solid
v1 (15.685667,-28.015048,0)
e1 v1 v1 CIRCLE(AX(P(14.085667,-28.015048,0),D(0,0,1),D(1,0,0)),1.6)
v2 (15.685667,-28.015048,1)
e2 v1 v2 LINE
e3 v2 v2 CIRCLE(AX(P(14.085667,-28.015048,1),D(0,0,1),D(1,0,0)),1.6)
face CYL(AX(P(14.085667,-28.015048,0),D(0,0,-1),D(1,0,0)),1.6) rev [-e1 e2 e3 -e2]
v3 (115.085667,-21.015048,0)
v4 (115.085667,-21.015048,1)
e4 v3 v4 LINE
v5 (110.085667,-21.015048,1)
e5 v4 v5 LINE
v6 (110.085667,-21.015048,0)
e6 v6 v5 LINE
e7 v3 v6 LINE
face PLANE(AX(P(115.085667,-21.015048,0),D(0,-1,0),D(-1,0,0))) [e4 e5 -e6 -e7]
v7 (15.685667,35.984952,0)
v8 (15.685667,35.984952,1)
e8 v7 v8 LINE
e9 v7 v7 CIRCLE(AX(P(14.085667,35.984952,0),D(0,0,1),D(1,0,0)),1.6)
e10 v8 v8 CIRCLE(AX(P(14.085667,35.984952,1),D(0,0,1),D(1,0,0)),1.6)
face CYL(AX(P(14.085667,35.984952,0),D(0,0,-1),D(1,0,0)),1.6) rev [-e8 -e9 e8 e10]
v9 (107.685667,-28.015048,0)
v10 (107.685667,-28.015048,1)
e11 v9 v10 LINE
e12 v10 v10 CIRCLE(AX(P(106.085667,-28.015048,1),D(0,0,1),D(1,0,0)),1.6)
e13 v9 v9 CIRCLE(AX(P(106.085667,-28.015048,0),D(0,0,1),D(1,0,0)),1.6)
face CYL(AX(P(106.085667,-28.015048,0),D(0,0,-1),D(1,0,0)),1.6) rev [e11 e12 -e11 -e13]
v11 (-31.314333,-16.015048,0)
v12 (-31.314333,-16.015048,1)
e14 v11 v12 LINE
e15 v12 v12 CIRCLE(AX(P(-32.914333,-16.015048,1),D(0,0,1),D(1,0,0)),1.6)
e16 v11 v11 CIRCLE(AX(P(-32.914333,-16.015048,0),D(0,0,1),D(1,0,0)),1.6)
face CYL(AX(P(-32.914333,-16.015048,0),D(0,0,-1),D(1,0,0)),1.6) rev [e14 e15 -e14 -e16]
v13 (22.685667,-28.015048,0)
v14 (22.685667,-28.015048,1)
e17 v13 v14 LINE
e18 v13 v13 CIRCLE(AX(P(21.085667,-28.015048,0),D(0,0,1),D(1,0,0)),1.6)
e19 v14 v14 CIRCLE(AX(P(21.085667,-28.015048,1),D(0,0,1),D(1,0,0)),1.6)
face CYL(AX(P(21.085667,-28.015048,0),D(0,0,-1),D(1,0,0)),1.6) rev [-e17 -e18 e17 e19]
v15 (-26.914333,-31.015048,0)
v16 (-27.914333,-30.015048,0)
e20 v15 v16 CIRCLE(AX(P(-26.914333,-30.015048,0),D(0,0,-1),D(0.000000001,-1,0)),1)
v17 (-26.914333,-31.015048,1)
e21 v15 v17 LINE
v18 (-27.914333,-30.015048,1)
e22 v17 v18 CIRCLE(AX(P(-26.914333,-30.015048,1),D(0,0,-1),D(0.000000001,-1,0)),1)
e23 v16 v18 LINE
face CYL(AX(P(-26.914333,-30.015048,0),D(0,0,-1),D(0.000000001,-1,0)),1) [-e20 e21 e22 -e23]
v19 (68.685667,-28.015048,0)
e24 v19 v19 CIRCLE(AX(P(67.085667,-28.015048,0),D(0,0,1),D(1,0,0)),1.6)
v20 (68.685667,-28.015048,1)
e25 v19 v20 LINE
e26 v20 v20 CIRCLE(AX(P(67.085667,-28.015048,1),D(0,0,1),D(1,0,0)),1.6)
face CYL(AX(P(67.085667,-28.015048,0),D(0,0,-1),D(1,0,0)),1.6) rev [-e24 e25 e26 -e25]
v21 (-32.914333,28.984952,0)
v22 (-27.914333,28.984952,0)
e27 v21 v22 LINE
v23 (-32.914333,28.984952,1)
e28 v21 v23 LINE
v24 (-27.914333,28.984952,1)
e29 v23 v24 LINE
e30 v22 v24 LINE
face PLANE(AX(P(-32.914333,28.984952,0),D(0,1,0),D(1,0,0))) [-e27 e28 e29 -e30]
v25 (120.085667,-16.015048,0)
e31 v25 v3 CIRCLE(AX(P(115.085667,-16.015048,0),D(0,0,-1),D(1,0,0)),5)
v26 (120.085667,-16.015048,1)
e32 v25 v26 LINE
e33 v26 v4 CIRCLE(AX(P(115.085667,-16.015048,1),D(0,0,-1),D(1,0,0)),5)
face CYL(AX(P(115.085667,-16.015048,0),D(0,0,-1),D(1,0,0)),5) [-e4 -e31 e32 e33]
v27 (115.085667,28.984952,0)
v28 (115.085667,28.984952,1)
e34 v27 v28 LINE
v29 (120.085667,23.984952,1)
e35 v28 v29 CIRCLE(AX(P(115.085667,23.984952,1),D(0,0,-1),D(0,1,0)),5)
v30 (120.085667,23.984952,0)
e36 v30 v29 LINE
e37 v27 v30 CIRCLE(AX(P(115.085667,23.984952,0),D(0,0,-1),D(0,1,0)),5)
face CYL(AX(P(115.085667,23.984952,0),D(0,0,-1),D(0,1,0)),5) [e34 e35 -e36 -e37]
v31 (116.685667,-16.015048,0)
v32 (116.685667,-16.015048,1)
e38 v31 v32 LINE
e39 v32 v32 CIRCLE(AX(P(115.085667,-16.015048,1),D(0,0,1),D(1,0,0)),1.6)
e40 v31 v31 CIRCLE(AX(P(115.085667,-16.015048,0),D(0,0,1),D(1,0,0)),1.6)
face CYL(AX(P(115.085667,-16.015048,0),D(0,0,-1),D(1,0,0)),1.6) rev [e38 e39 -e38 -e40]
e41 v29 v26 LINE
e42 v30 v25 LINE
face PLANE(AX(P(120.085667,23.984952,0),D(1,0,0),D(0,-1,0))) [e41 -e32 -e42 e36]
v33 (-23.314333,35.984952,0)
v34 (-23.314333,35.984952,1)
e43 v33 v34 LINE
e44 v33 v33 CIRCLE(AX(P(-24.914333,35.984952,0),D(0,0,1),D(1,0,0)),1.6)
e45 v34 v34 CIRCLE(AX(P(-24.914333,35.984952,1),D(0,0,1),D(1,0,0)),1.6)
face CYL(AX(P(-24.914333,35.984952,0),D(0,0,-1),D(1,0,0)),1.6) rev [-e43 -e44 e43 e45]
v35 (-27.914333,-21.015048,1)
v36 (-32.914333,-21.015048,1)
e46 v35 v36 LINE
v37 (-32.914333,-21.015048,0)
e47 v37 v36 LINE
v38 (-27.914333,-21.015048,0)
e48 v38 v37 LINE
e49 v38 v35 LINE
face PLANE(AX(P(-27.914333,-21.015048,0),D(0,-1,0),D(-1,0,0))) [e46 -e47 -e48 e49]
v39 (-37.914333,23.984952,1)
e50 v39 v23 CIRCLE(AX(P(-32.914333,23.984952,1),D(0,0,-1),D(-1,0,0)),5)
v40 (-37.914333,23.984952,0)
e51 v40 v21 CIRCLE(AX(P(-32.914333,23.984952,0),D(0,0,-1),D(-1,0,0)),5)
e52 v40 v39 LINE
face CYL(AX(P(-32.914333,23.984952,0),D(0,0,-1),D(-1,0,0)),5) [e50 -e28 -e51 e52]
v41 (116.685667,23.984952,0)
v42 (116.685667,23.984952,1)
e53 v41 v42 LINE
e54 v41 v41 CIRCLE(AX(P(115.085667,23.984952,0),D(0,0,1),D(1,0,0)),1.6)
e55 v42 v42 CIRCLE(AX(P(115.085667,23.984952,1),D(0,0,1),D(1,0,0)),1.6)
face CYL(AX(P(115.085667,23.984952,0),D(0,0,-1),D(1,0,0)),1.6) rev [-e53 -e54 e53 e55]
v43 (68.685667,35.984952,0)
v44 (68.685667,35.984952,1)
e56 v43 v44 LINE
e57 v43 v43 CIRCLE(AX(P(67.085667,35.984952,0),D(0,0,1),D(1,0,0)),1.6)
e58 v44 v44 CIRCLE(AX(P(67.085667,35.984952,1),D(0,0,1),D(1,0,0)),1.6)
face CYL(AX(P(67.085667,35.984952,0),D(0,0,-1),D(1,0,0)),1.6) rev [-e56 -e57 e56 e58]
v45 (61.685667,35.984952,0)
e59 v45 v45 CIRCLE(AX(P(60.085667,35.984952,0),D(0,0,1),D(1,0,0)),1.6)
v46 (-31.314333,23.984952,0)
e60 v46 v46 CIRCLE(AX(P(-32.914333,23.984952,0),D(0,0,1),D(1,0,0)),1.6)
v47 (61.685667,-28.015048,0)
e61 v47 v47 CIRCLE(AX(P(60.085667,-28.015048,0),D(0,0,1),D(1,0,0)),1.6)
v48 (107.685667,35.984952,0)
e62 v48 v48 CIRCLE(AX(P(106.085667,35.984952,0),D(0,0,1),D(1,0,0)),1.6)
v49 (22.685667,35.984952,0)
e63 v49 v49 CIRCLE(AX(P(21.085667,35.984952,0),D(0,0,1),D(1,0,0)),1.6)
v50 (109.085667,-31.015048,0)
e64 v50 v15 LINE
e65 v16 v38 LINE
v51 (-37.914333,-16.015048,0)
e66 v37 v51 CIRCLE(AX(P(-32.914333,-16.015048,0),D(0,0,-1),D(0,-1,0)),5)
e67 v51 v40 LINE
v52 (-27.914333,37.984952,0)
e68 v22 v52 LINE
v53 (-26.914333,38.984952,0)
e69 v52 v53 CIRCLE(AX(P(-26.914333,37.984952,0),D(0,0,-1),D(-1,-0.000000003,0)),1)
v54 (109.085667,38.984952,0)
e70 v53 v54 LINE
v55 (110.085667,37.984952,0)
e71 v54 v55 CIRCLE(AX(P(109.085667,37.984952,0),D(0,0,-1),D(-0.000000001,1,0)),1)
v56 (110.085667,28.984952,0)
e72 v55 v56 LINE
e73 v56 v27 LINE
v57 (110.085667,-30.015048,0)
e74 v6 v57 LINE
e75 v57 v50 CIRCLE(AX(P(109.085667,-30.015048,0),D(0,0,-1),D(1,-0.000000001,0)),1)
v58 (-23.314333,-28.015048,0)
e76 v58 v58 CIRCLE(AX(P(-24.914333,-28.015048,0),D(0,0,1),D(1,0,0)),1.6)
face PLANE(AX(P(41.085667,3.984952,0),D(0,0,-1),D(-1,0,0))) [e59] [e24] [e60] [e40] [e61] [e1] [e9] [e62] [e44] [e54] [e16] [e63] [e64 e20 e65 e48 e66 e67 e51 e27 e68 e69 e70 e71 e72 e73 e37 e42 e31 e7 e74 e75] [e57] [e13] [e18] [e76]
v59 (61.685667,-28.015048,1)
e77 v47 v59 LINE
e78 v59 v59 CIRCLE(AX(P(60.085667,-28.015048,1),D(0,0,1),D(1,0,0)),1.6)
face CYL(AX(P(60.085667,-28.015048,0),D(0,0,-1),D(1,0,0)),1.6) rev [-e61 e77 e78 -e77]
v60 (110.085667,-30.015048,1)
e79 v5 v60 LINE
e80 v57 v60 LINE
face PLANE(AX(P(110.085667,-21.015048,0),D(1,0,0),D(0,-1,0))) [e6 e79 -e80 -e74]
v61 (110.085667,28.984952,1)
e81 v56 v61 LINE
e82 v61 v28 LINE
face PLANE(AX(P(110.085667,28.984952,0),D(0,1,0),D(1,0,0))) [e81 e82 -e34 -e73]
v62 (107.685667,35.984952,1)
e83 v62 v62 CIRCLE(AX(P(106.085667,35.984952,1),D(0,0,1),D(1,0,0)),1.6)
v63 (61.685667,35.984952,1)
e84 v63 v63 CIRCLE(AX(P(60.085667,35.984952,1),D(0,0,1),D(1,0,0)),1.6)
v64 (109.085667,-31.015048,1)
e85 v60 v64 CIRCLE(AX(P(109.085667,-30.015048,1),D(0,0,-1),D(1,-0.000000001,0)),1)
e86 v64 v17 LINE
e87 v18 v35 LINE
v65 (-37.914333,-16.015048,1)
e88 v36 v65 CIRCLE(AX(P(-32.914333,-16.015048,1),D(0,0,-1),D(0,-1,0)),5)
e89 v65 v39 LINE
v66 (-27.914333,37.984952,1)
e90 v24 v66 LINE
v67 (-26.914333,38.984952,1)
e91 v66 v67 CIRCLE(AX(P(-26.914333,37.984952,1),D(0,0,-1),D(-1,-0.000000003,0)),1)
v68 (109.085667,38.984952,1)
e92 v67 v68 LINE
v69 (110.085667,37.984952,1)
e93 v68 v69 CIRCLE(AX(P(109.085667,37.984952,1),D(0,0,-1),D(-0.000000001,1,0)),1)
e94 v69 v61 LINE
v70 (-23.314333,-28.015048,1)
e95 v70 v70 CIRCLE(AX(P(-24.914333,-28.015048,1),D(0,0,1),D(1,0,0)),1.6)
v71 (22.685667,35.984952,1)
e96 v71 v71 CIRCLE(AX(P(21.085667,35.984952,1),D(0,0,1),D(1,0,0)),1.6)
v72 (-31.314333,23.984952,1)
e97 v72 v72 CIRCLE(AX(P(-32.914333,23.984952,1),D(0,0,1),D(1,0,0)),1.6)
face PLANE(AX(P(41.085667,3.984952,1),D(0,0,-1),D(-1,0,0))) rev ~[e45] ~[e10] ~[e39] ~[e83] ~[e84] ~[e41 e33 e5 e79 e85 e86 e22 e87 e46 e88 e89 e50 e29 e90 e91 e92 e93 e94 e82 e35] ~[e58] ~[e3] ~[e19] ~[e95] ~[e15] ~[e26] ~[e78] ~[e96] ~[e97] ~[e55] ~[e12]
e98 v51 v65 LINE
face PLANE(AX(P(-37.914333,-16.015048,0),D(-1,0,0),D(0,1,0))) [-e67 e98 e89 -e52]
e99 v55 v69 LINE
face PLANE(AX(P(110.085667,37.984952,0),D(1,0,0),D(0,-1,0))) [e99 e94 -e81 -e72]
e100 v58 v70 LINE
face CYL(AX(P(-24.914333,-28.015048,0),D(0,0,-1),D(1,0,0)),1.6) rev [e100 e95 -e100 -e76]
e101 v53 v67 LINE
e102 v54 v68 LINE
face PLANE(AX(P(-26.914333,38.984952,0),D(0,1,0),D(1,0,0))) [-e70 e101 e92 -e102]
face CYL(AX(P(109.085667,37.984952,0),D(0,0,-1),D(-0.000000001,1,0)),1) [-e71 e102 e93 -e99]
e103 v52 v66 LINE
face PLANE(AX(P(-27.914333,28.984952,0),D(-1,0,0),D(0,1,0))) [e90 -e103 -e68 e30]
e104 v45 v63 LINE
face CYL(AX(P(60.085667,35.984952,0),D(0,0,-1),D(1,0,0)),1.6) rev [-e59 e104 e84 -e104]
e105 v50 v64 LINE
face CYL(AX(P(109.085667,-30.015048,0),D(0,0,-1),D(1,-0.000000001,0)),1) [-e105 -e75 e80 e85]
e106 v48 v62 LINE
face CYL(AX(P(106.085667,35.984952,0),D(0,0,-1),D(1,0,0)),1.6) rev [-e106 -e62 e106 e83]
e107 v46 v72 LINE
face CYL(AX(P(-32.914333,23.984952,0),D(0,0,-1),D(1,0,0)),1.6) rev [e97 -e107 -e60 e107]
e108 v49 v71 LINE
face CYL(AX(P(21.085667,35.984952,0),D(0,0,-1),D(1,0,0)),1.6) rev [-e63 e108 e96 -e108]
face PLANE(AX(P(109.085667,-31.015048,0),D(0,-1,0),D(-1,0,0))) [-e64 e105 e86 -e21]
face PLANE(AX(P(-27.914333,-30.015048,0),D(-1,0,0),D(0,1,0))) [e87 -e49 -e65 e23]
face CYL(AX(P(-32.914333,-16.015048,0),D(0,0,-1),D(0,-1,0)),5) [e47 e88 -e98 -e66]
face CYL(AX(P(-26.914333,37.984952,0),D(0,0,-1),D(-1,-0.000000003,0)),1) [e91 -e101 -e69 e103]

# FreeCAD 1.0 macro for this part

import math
import FreeCAD as App
import Part
import Sketcher
from FreeCAD import Vector

doc = App.newDocument("Part")
params = doc.addObject("Spreadsheet::Sheet", "Params")
for row, (alias, value) in enumerate([
    ("sketch1_radius", "5 mm"),
    ("sketch1_radius2", "1 mm"),
    ("sketch1_diameter", "3.2 mm"),
    ("sketch1_width", "5 mm"),
    ("sketch1_width2", "136 mm"),
    ("pad1_length", "1 mm"),
], start=1):
    params.set(f"A{row}", alias)
    params.set(f"B{row}", "=" + value)
    params.setAlias(f"B{row}", alias)

body = doc.addObject("PartDesign::Body", "Body")

# Sketch on XY plane
sketch1 = body.newObject("Sketcher::SketchObject", "Sketch")
sketch1.AttachmentSupport = (doc.getObject("XY_Plane"), [""])
sketch1.MapMode = "FlatFace"
sketch1.addGeometry([
    Part.LineSegment(Vector(110.085667, -30.015048, 0), Vector(110.085667, -21.015048, 0)),  # 0
    Part.LineSegment(Vector(110.085667, -21.015048, 0), Vector(115.085667, -21.015048, 0)),  # 1
    Part.ArcOfCircle(Part.Circle(Vector(115.085667, -16.015048, 0), Vector(0, 0, 1), 5), math.radians(-90), math.radians(0)),  # 2
    Part.LineSegment(Vector(120.085667, -16.015048, 0), Vector(120.085667, 23.984952, 0)),  # 3
    Part.ArcOfCircle(Part.Circle(Vector(115.085667, 23.984952, 0), Vector(0, 0, 1), 5), math.radians(0), math.radians(90)),  # 4
    Part.LineSegment(Vector(115.085667, 28.984952, 0), Vector(110.085667, 28.984952, 0)),  # 5
    Part.LineSegment(Vector(110.085667, 28.984952, 0), Vector(110.085667, 37.984952, 0)),  # 6
    Part.ArcOfCircle(Part.Circle(Vector(109.085667, 37.984952, 0), Vector(0, 0, 1), 1), math.radians(0), math.radians(90)),  # 7
    Part.LineSegment(Vector(109.085667, 38.984952, 0), Vector(-26.914333, 38.984952, 0)),  # 8
    Part.ArcOfCircle(Part.Circle(Vector(-26.914333, 37.984952, 0), Vector(0, 0, 1), 1), math.radians(90), math.radians(180)),  # 9
    Part.LineSegment(Vector(-27.914333, 37.984952, 0), Vector(-27.914333, 28.984952, 0)),  # 10
    Part.LineSegment(Vector(-27.914333, 28.984952, 0), Vector(-32.914333, 28.984952, 0)),  # 11
    Part.ArcOfCircle(Part.Circle(Vector(-32.914333, 23.984952, 0), Vector(0, 0, 1), 5), math.radians(90), math.radians(180)),  # 12
    Part.LineSegment(Vector(-37.914333, 23.984952, 0), Vector(-37.914333, -16.015048, 0)),  # 13
    Part.ArcOfCircle(Part.Circle(Vector(-32.914333, -16.015048, 0), Vector(0, 0, 1), 5), math.radians(180), math.radians(270)),  # 14
    Part.LineSegment(Vector(-32.914333, -21.015048, 0), Vector(-27.914333, -21.015048, 0)),  # 15
    Part.LineSegment(Vector(-27.914333, -21.015048, 0), Vector(-27.914333, -30.015048, 0)),  # 16
    Part.ArcOfCircle(Part.Circle(Vector(-26.914333, -30.015048, 0), Vector(0, 0, 1), 1), math.radians(180), math.radians(270)),  # 17
    Part.LineSegment(Vector(-26.914333, -31.015048, 0), Vector(109.085667, -31.015048, 0)),  # 18
    Part.ArcOfCircle(Part.Circle(Vector(109.085667, -30.015048, 0), Vector(0, 0, 1), 1), math.radians(-90), math.radians(0)),  # 19
    Part.Circle(Vector(106.085667, -28.015048, 0), Vector(0, 0, 1), 1.6),  # 20
    Part.Circle(Vector(115.085667, -16.015048, 0), Vector(0, 0, 1), 1.6),  # 21
    Part.Circle(Vector(67.085667, -28.015048, 0), Vector(0, 0, 1), 1.6),  # 22
    Part.Circle(Vector(60.085667, -28.015048, 0), Vector(0, 0, 1), 1.6),  # 23
    Part.Circle(Vector(21.085667, -28.015048, 0), Vector(0, 0, 1), 1.6),  # 24
    Part.Circle(Vector(14.085667, -28.015048, 0), Vector(0, 0, 1), 1.6),  # 25
    Part.Circle(Vector(-24.914333, -28.015048, 0), Vector(0, 0, 1), 1.6),  # 26
    Part.Circle(Vector(-32.914333, -16.015048, 0), Vector(0, 0, 1), 1.6),  # 27
    Part.Circle(Vector(115.085667, 23.984952, 0), Vector(0, 0, 1), 1.6),  # 28
    Part.Circle(Vector(106.085667, 35.984952, 0), Vector(0, 0, 1), 1.6),  # 29
    Part.Circle(Vector(67.085667, 35.984952, 0), Vector(0, 0, 1), 1.6),  # 30
    Part.Circle(Vector(60.085667, 35.984952, 0), Vector(0, 0, 1), 1.6),  # 31
    Part.Circle(Vector(21.085667, 35.984952, 0), Vector(0, 0, 1), 1.6),  # 32
    Part.Circle(Vector(14.085667, 35.984952, 0), Vector(0, 0, 1), 1.6),  # 33
    Part.Circle(Vector(-32.914333, 23.984952, 0), Vector(0, 0, 1), 1.6),  # 34
    Part.Circle(Vector(-24.914333, 35.984952, 0), Vector(0, 0, 1), 1.6),  # 35
], False)
sketch1.addConstraint([
    Sketcher.Constraint("Coincident", 0, 2, 1, 1),
    Sketcher.Constraint("Tangent", 1, 2, 2, 1),
    Sketcher.Constraint("Tangent", 2, 2, 3, 1),
    Sketcher.Constraint("Tangent", 3, 2, 4, 1),
    Sketcher.Constraint("Tangent", 4, 2, 5, 1),
    Sketcher.Constraint("Coincident", 5, 2, 6, 1),
    Sketcher.Constraint("Tangent", 6, 2, 7, 1),
    Sketcher.Constraint("Tangent", 7, 2, 8, 1),
    Sketcher.Constraint("Tangent", 8, 2, 9, 1),
    Sketcher.Constraint("Tangent", 9, 2, 10, 1),
    Sketcher.Constraint("Coincident", 10, 2, 11, 1),
    Sketcher.Constraint("Tangent", 11, 2, 12, 1),
    Sketcher.Constraint("Tangent", 12, 2, 13, 1),
    Sketcher.Constraint("Tangent", 13, 2, 14, 1),
    Sketcher.Constraint("Tangent", 14, 2, 15, 1),
    Sketcher.Constraint("Coincident", 15, 2, 16, 1),
    Sketcher.Constraint("Tangent", 16, 2, 17, 1),
    Sketcher.Constraint("Tangent", 17, 2, 18, 1),
    Sketcher.Constraint("Tangent", 18, 2, 19, 1),
    Sketcher.Constraint("Tangent", 19, 2, 0, 1),
    Sketcher.Constraint("Vertical", 0),
    Sketcher.Constraint("Horizontal", 1),
    Sketcher.Constraint("Vertical", 3),
    Sketcher.Constraint("Horizontal", 5),
    Sketcher.Constraint("Vertical", 6),
    Sketcher.Constraint("Horizontal", 8),
    Sketcher.Constraint("Vertical", 10),
    Sketcher.Constraint("Horizontal", 11),
    Sketcher.Constraint("Vertical", 13),
    Sketcher.Constraint("Horizontal", 15),
    Sketcher.Constraint("Vertical", 16),
    Sketcher.Constraint("Horizontal", 18),
    Sketcher.Constraint("Coincident", 21, 3, 2, 3),
    Sketcher.Constraint("Coincident", 27, 3, 14, 3),
    Sketcher.Constraint("Coincident", 28, 3, 4, 3),
    Sketcher.Constraint("Coincident", 34, 3, 12, 3),
    Sketcher.Constraint("Equal", 2, 4),
    Sketcher.Constraint("Equal", 7, 9),
    Sketcher.Constraint("Equal", 4, 12),
    Sketcher.Constraint("Equal", 12, 14),
    Sketcher.Constraint("Equal", 9, 17),
    Sketcher.Constraint("Equal", 17, 19),
    Sketcher.Constraint("Equal", 20, 21),
    Sketcher.Constraint("Equal", 21, 22),
    Sketcher.Constraint("Equal", 22, 23),
    Sketcher.Constraint("Equal", 23, 24),
    Sketcher.Constraint("Equal", 24, 25),
    Sketcher.Constraint("Equal", 25, 26),
    Sketcher.Constraint("Equal", 26, 27),
    Sketcher.Constraint("Equal", 27, 28),
    Sketcher.Constraint("Equal", 28, 29),
    Sketcher.Constraint("Equal", 29, 30),
    Sketcher.Constraint("Equal", 30, 31),
    Sketcher.Constraint("Equal", 31, 32),
    Sketcher.Constraint("Equal", 32, 33),
    Sketcher.Constraint("Equal", 33, 34),
    Sketcher.Constraint("Equal", 34, 35),
    Sketcher.Constraint("Horizontal", 4, 3, 12, 3),
    Sketcher.Constraint("Horizontal", 2, 3, 14, 3),
    Sketcher.Constraint("Horizontal", 20, 3, 22, 3),
    Sketcher.Constraint("Horizontal", 22, 3, 23, 3),
    Sketcher.Constraint("Horizontal", 23, 3, 24, 3),
    Sketcher.Constraint("Horizontal", 24, 3, 25, 3),
    Sketcher.Constraint("Horizontal", 25, 3, 26, 3),
    Sketcher.Constraint("Horizontal", 29, 3, 30, 3),
    Sketcher.Constraint("Horizontal", 30, 3, 31, 3),
    Sketcher.Constraint("Horizontal", 31, 3, 32, 3),
    Sketcher.Constraint("Horizontal", 32, 3, 33, 3),
    Sketcher.Constraint("Horizontal", 33, 3, 35, 3),
    Sketcher.Constraint("Vertical", 9, 3, 17, 3),
    Sketcher.Constraint("Vertical", 7, 3, 19, 3),
    Sketcher.Constraint("Vertical", 20, 3, 29, 3),
    Sketcher.Constraint("Vertical", 22, 3, 30, 3),
    Sketcher.Constraint("Vertical", 23, 3, 31, 3),
    Sketcher.Constraint("Vertical", 24, 3, 32, 3),
    Sketcher.Constraint("Vertical", 25, 3, 33, 3),
    Sketcher.Constraint("Vertical", 26, 3, 35, 3),
    Sketcher.Constraint("Equal", 5, 11),
    Sketcher.Constraint("Equal", 0, 6),
    Sketcher.Constraint("Radius", 2, 5.0),
    Sketcher.Constraint("Radius", 7, 1.0),
    Sketcher.Constraint("Diameter", 20, 3.2),
    Sketcher.Constraint("DistanceX", 1, 1, 1, 2, 5.0),
    Sketcher.Constraint("DistanceX", 8, 2, 8, 1, 136.0),
    Sketcher.Constraint("DistanceY", 0, 1, 0, 2, 9.0),
    Sketcher.Constraint("DistanceY", 3, 1, 3, 2, 40.0),
    Sketcher.Constraint("DistanceX", 20, 3, 19, 3, 3.0),
    Sketcher.Constraint("DistanceY", 19, 3, 20, 3, 2.0),
    Sketcher.Constraint("DistanceX", 22, 3, 20, 3, 39.0),
    Sketcher.Constraint("DistanceX", 23, 3, 22, 3, 7.0),
    Sketcher.Constraint("DistanceX", 24, 3, 23, 3, 39.0),
    Sketcher.Constraint("DistanceX", 25, 3, 24, 3, 7.0),
    Sketcher.Constraint("DistanceX", 17, 3, 26, 3, 2.0),
    Sketcher.Constraint("DistanceY", 29, 3, 7, 3, 2.0),
    Sketcher.Constraint("DistanceY", 2, 3, -1, 1, 16.015048),
    Sketcher.Constraint("DistanceX", -1, 1, 2, 3, 115.085667),
])
sketch1.setExpression("Constraints[79]", "Params.sketch1_radius")
sketch1.setExpression("Constraints[80]", "Params.sketch1_radius2")
sketch1.setExpression("Constraints[81]", "Params.sketch1_diameter")
sketch1.setExpression("Constraints[82]", "Params.sketch1_width")
sketch1.setExpression("Constraints[83]", "Params.sketch1_width2")
pad1 = body.newObject("PartDesign::Pad", "Pad")
pad1.Profile = sketch1
pad1.setExpression("Length", "Params.pad1_length")

doc.recompute()
